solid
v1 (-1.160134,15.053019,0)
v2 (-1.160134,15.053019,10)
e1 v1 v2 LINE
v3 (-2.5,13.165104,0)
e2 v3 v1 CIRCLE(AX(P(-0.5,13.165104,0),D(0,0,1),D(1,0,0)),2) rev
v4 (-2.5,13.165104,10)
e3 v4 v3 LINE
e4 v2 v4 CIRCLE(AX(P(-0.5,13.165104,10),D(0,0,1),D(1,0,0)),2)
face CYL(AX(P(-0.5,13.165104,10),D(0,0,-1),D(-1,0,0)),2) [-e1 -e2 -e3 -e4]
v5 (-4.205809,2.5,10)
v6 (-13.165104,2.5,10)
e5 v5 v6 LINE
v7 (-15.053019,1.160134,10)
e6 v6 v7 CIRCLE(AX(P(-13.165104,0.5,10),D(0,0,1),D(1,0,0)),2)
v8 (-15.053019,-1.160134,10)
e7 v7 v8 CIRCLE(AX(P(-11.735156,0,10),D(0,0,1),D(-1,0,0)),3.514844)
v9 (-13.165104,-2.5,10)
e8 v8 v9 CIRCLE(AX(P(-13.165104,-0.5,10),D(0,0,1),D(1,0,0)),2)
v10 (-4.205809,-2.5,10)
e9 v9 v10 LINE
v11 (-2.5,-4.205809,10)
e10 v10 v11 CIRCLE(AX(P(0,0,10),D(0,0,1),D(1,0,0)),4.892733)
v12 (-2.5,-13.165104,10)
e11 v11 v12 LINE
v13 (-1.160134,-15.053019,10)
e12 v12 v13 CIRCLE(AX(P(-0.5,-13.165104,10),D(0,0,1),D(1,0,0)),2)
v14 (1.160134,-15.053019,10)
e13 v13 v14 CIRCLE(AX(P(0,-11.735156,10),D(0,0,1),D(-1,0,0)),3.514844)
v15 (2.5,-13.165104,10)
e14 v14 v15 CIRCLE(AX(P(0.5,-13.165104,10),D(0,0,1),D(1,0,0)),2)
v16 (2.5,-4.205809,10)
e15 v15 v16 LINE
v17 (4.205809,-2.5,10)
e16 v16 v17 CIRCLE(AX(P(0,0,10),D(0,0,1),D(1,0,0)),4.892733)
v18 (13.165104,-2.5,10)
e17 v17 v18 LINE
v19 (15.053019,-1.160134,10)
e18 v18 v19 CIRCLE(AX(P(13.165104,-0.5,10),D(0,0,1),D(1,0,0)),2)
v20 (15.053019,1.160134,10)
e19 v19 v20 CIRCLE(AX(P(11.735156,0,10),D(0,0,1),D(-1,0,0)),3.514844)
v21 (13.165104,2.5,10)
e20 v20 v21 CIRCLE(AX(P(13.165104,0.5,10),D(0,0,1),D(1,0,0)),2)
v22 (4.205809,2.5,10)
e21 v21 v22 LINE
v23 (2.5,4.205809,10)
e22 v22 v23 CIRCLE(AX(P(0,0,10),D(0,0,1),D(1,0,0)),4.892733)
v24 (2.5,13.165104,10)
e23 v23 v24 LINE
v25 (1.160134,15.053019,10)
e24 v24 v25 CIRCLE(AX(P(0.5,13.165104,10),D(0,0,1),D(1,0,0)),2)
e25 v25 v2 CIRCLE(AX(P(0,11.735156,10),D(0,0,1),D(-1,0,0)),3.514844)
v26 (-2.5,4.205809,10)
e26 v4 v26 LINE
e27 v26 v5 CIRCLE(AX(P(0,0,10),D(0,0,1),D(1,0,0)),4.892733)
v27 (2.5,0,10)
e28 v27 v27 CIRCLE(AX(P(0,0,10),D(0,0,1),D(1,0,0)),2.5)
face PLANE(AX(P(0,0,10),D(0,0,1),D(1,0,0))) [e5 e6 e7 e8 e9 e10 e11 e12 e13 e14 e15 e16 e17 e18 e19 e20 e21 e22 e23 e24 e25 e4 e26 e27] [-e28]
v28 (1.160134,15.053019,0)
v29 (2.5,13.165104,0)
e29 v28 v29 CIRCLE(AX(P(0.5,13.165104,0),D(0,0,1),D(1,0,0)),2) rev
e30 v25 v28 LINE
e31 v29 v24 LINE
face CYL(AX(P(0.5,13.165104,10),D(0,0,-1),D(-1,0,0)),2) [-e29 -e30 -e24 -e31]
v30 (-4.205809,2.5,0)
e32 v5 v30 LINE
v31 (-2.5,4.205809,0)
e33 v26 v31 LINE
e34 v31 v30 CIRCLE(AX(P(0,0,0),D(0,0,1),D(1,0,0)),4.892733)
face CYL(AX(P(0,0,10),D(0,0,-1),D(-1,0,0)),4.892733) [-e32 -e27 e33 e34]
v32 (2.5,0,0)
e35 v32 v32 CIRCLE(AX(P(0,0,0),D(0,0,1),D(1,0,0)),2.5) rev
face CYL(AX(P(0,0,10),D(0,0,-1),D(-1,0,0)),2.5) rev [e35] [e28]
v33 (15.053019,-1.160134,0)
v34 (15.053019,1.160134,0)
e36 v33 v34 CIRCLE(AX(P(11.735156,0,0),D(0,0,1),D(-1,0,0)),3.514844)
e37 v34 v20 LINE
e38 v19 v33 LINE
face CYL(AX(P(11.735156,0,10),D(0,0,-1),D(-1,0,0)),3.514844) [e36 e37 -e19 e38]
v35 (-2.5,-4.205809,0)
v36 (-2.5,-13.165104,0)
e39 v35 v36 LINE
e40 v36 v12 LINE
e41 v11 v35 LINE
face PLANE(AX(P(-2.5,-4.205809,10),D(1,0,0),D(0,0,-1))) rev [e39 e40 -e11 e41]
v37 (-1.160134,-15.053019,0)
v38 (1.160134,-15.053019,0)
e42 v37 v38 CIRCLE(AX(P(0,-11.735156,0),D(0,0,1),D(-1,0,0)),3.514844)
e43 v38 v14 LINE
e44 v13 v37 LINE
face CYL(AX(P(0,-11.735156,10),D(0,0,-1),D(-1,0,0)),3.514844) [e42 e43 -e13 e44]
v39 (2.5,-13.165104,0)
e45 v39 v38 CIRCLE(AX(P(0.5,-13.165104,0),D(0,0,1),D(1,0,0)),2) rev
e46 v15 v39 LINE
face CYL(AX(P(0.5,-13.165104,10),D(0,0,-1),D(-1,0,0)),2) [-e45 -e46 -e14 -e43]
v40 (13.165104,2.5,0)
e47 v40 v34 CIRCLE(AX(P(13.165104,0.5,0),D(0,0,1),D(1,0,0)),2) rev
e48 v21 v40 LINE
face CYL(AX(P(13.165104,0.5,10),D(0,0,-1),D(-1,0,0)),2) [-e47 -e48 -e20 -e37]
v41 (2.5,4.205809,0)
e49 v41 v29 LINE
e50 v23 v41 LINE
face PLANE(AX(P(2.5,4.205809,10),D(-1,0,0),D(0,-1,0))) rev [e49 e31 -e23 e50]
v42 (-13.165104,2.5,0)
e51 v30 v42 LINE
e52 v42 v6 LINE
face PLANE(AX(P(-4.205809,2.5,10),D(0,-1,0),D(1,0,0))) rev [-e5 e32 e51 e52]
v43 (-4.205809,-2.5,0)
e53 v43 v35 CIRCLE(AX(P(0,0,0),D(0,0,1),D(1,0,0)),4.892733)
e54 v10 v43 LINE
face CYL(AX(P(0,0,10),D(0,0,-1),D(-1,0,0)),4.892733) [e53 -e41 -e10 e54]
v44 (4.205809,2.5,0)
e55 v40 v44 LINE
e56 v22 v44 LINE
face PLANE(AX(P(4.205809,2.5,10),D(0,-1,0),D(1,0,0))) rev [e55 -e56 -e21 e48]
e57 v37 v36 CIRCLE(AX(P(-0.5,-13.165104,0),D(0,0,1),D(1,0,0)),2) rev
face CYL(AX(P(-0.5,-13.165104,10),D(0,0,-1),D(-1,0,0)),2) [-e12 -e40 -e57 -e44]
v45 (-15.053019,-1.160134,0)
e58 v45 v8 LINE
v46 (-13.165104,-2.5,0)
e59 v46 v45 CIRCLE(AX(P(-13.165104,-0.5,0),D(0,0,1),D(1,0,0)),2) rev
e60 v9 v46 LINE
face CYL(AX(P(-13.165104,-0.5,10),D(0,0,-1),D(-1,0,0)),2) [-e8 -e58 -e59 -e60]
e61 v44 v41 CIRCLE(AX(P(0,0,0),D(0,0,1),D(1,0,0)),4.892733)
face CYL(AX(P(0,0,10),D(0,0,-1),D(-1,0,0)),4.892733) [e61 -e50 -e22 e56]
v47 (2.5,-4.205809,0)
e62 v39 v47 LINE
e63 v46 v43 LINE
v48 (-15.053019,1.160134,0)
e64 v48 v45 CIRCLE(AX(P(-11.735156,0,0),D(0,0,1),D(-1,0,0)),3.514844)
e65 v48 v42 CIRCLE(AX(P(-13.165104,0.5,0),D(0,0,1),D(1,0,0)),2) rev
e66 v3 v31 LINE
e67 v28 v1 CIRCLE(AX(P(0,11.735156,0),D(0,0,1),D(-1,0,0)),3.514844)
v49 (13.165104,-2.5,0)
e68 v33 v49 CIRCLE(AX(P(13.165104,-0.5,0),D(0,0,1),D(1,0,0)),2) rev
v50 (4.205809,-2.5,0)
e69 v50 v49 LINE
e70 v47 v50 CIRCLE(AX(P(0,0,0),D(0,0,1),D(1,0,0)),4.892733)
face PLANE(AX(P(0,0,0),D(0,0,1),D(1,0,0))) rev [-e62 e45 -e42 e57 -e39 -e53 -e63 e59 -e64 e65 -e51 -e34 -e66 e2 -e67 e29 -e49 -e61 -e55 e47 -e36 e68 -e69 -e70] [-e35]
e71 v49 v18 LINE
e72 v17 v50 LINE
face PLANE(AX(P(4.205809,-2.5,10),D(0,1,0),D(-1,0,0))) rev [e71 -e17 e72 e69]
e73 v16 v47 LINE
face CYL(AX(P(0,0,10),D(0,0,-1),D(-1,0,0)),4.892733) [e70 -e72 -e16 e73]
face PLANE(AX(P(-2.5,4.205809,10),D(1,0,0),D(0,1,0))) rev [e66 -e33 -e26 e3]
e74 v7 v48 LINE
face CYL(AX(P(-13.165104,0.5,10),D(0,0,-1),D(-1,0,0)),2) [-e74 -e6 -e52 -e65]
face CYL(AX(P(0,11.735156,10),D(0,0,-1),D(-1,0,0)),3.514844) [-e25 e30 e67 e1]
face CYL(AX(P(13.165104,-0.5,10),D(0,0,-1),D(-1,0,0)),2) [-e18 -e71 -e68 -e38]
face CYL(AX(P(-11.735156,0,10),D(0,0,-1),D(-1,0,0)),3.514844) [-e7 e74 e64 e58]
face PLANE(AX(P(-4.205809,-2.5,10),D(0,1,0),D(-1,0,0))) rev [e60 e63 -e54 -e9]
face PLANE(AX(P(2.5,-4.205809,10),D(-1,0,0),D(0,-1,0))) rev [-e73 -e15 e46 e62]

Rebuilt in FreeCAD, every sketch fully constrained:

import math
import FreeCAD as App
import Part
import Sketcher

V = App.Vector
Q = App.Units.Quantity


def edges_at(feature, points):
    """Names of the edges that pass closest to the given points."""
    edges = feature.Shape.Edges
    near = lambda p: min(range(len(edges)), key=lambda i: edges[i].distToShape(Part.Vertex(*p))[0])
    return sorted({f"Edge{near(p) + 1}" for p in points})

doc = App.newDocument("Part")
body = doc.addObject("PartDesign::Body", "Body")

# Sketch on XY plane
sketch1 = body.newObject("Sketcher::SketchObject", "Sketch")
sketch1.AttachmentSupport = (doc.getObject("XY_Plane"), [""])
sketch1.MapMode = "FlatFace"
sketch1.addGeometry([
    Part.LineSegment(V(-2.5, 14.2, 0), V(-2.5, 4.2, 0)),  # 0
    Part.ArcOfCircle(Part.Circle(V(0, 0, 0), V(0, 0, 1), 4.9), math.radians(121), math.radians(149)),  # 1
    Part.LineSegment(V(-4.2, 2.5, 0), V(-14.2, 2.5, 0)),  # 2
    Part.ArcOfCircle(Part.Circle(V(-11.7, 0, 0), V(0, 0, 1), 3.5), math.radians(135), math.radians(225)),  # 3
    Part.LineSegment(V(-14.2, -2.5, 0), V(-4.2, -2.5, 0)),  # 4
    Part.ArcOfCircle(Part.Circle(V(0, 0, 0), V(0, 0, 1), 4.9), math.radians(-149), math.radians(-121)),  # 5
    Part.LineSegment(V(-2.5, -4.2, 0), V(-2.5, -14.2, 0)),  # 6
    Part.ArcOfCircle(Part.Circle(V(0, -11.7, 0), V(0, 0, 1), 3.5), math.radians(-135), math.radians(-45)),  # 7
    Part.LineSegment(V(2.5, -14.2, 0), V(2.5, -4.2, 0)),  # 8
    Part.ArcOfCircle(Part.Circle(V(0, 0, 0), V(0, 0, 1), 4.9), math.radians(-59), math.radians(-31)),  # 9
    Part.LineSegment(V(4.2, -2.5, 0), V(14.2, -2.5, 0)),  # 10
    Part.ArcOfCircle(Part.Circle(V(11.7, 0, 0), V(0, 0, 1), 3.5), math.radians(-45), math.radians(45)),  # 11
    Part.LineSegment(V(14.2, 2.5, 0), V(4.2, 2.5, 0)),  # 12
    Part.ArcOfCircle(Part.Circle(V(0, 0, 0), V(0, 0, 1), 4.9), math.radians(31), math.radians(59)),  # 13
    Part.LineSegment(V(2.5, 4.2, 0), V(2.5, 14.2, 0)),  # 14
    Part.ArcOfCircle(Part.Circle(V(0, 11.7, 0), V(0, 0, 1), 3.5), math.radians(45), math.radians(135)),  # 15
], False)
sketch1.addConstraint([
    Sketcher.Constraint("Coincident", 0, 2, 1, 1),
    Sketcher.Constraint("Coincident", 1, 2, 2, 1),
    Sketcher.Constraint("Coincident", 2, 2, 3, 1),
    Sketcher.Constraint("Coincident", 3, 2, 4, 1),
    Sketcher.Constraint("Coincident", 4, 2, 5, 1),
    Sketcher.Constraint("Coincident", 5, 2, 6, 1),
    Sketcher.Constraint("Coincident", 6, 2, 7, 1),
    Sketcher.Constraint("Coincident", 7, 2, 8, 1),
    Sketcher.Constraint("Coincident", 8, 2, 9, 1),
    Sketcher.Constraint("Coincident", 9, 2, 10, 1),
    Sketcher.Constraint("Coincident", 10, 2, 11, 1),
    Sketcher.Constraint("Coincident", 11, 2, 12, 1),
    Sketcher.Constraint("Coincident", 12, 2, 13, 1),
    Sketcher.Constraint("Coincident", 13, 2, 14, 1),
    Sketcher.Constraint("Coincident", 14, 2, 15, 1),
    Sketcher.Constraint("Coincident", 15, 2, 0, 1),
    Sketcher.Constraint("Vertical", 0),
    Sketcher.Constraint("Horizontal", 2),
    Sketcher.Constraint("Horizontal", 4),
    Sketcher.Constraint("Vertical", 6),
    Sketcher.Constraint("Vertical", 8),
    Sketcher.Constraint("Horizontal", 10),
    Sketcher.Constraint("Horizontal", 12),
    Sketcher.Constraint("Vertical", 14),
    Sketcher.Constraint("Coincident", 1, 3, -1, 1),
    Sketcher.Constraint("Coincident", 5, 3, -1, 1),
    Sketcher.Constraint("Coincident", 9, 3, -1, 1),
    Sketcher.Constraint("Coincident", 13, 3, -1, 1),
    Sketcher.Constraint("Equal", 1, 5),
    Sketcher.Constraint("Equal", 3, 7),
    Sketcher.Constraint("Equal", 5, 9),
    Sketcher.Constraint("Equal", 7, 11),
    Sketcher.Constraint("Equal", 9, 13),
    Sketcher.Constraint("Equal", 11, 15),
    Sketcher.Constraint("Symmetric", 3, 3, 11, 3, -1, 1),
    Sketcher.Constraint("Symmetric", 7, 3, 15, 3, -1, 1),
    Sketcher.Constraint("Symmetric", 6, 2, 7, 2, -2),
    Sketcher.Constraint("Symmetric", 3, 2, 10, 2, -2),
    Sketcher.Constraint("Horizontal", 2, 2, 11, 2),
    Sketcher.Constraint("Horizontal", 0, 2, 13, 2),
    Sketcher.Constraint("Vertical", 2, 2, 3, 2),
    Sketcher.Constraint("Vertical", 0, 2, 5, 2),
    Sketcher.Constraint("Equal", 12, 0),
    Sketcher.Constraint("DistanceX", 2, 2, 2, 1, Q("10 mm")),
    Sketcher.Constraint("DistanceY", 3, 2, 2, 2, Q("5 mm")),
    Sketcher.Constraint("DistanceX", 6, 2, 7, 2, Q("5 mm")),
    Sketcher.Constraint("Radius", 1, Q("4.892733 mm")),
    Sketcher.Constraint("Radius", 3, Q("3.514844 mm")),
])
pad1 = body.newObject("PartDesign::Pad", "Pad")
pad1.Profile = sketch1
pad1.Length = 10
doc.recompute()

fillet = body.newObject("PartDesign::Fillet", "Fillet")
fillet.Base = (pad1, edges_at(pad1, [
    (-2.5, 14.206, 5),
    (2.5, 14.206, 5),
    (14.206, 2.5, 5),
    (14.206, -2.5, 5),
    (2.5, -14.206, 5),
    (-2.5, -14.206, 5),
    (-14.206, -2.5, 5),
    (-14.206, 2.5, 5),
]))
fillet.Radius = 2

# Sketch on XY plane
sketch2 = body.newObject("Sketcher::SketchObject", "Sketch001")
sketch2.AttachmentSupport = (doc.getObject("XY_Plane"), [""])
sketch2.MapMode = "FlatFace"
sketch2.addGeometry(Part.Circle(V(0, 0, 0), V(0, 0, 1), 2.5), False)
sketch2.addConstraint([
    Sketcher.Constraint("Coincident", 0, 3, -1, 1),
    Sketcher.Constraint("Diameter", 0, Q("5 mm")),
])
pocket1 = body.newObject("PartDesign::Pocket", "Pocket")
pocket1.Profile = sketch2
pocket1.Type = "ThroughAll"
pocket1.Midplane = True

doc.recompute()
